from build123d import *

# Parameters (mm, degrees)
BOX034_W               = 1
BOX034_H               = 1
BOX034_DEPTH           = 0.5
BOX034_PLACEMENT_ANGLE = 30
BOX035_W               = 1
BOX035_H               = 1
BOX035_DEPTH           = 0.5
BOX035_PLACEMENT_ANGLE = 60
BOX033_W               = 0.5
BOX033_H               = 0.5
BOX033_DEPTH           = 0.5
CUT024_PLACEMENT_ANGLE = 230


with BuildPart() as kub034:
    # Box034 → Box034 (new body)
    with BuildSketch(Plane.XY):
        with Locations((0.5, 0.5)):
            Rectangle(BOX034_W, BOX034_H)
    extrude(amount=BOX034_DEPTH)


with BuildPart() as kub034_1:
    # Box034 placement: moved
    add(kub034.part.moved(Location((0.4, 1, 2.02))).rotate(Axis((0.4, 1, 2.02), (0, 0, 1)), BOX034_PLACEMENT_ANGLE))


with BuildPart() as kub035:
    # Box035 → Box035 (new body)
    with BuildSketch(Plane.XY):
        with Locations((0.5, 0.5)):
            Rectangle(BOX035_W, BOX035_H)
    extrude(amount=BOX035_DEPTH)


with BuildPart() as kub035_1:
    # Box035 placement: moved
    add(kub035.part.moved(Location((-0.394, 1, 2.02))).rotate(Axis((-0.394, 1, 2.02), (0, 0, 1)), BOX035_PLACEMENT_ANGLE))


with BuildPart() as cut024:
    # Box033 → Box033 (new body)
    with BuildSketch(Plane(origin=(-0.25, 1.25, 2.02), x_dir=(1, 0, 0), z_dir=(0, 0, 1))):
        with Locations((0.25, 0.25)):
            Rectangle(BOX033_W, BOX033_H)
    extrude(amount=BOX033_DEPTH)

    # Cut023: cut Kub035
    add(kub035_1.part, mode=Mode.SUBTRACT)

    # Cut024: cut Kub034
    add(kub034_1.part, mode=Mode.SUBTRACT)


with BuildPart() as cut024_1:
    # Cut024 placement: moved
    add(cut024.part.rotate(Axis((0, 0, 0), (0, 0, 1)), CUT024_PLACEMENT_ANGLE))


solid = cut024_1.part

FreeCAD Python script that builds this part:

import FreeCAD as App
import Part
import Sketcher
from FreeCAD import Vector

doc = App.newDocument("Part")
body = doc.addObject("PartDesign::Body", "Body")

sketch1 = body.newObject("Sketcher::SketchObject", "Sketch")
sketch1.AttachmentSupport = (doc.getObject("XY_Plane"), [""])
sketch1.MapMode = "FlatFace"
sketch1.addGeometry([
    Part.LineSegment(Vector(0, 1, 0), Vector(0, 0, 0)),
    Part.LineSegment(Vector(0, 0, 0), Vector(1, 0, 0)),
    Part.LineSegment(Vector(1, 0, 0), Vector(1, 1, 0)),
    Part.LineSegment(Vector(1, 1, 0), Vector(0, 1, 0)),
], False)
sketch1.addConstraint([
    Sketcher.Constraint("Coincident", 0, 2, 1, 1),
    Sketcher.Constraint("Coincident", 1, 2, 2, 1),
    Sketcher.Constraint("Coincident", 2, 2, 3, 1),
    Sketcher.Constraint("Coincident", 3, 2, 0, 1),
    Sketcher.Constraint("Vertical", 0),
    Sketcher.Constraint("Horizontal", 1),
    Sketcher.Constraint("Vertical", 2),
    Sketcher.Constraint("Horizontal", 3),
    Sketcher.Constraint("Coincident", 0, 2, -1, 1),
    Sketcher.Constraint("Equal", 3, 0),
    Sketcher.Constraint("DistanceX", 1, 1, 1, 2, 1.0),
])
pad1 = body.newObject("PartDesign::Pad", "Pad")
pad1.Profile = sketch1
pad1.Length = 0.5
body2 = doc.addObject("PartDesign::Body", "Body001")
doc.recompute()

body.Placement = App.Placement(Vector(0.4, 1, 2.02), App.Rotation(Vector(0, 0, 1), 30))
boolean = body2.newObject("PartDesign::Boolean", "Boolean")
boolean.Type = "Fuse"
boolean.addObjects([body])
body3 = doc.addObject("PartDesign::Body", "Body002")

sketch2 = body3.newObject("Sketcher::SketchObject", "Sketch001")
sketch2.AttachmentSupport = (doc.getObject("XY_Plane002"), [""])
sketch2.MapMode = "FlatFace"
sketch2.addGeometry([
    Part.LineSegment(Vector(0, 1, 0), Vector(0, 0, 0)),
    Part.LineSegment(Vector(0, 0, 0), Vector(1, 0, 0)),
    Part.LineSegment(Vector(1, 0, 0), Vector(1, 1, 0)),
    Part.LineSegment(Vector(1, 1, 0), Vector(0, 1, 0)),
], False)
sketch2.addConstraint([
    Sketcher.Constraint("Coincident", 0, 2, 1, 1),
    Sketcher.Constraint("Coincident", 1, 2, 2, 1),
    Sketcher.Constraint("Coincident", 2, 2, 3, 1),
    Sketcher.Constraint("Coincident", 3, 2, 0, 1),
    Sketcher.Constraint("Vertical", 0),
    Sketcher.Constraint("Horizontal", 1),
    Sketcher.Constraint("Vertical", 2),
    Sketcher.Constraint("Horizontal", 3),
    Sketcher.Constraint("Coincident", 0, 2, -1, 1),
    Sketcher.Constraint("Equal", 3, 0),
    Sketcher.Constraint("DistanceX", 1, 1, 1, 2, 1.0),
])
pad2 = body3.newObject("PartDesign::Pad", "Pad001")
pad2.Profile = sketch2
pad2.Length = 0.5
body4 = doc.addObject("PartDesign::Body", "Body003")
doc.recompute()

body3.Placement = App.Placement(Vector(-0.394, 1, 2.02), App.Rotation(Vector(0, 0, 1), 60))
boolean2 = body4.newObject("PartDesign::Boolean", "Boolean001")
boolean2.Type = "Fuse"
boolean2.addObjects([body3])
body5 = doc.addObject("PartDesign::Body", "Body004")

sketch3 = body5.newObject("Sketcher::SketchObject", "Sketch002")
sketch3.AttachmentSupport = (doc.getObject("XY_Plane004"), [""])
sketch3.MapMode = "FlatFace"
sketch3.AttachmentOffset = App.Placement(Vector(0, 0, 2.02), App.Rotation())
sketch3.addGeometry([
    Part.LineSegment(Vector(-0.2, 1.8, 0), Vector(-0.2, 1.2, 0)),
    Part.LineSegment(Vector(-0.2, 1.2, 0), Vector(0.2, 1.2, 0)),
    Part.LineSegment(Vector(0.2, 1.2, 0), Vector(0.2, 1.8, 0)),
    Part.LineSegment(Vector(0.2, 1.8, 0), Vector(-0.2, 1.8, 0)),
], False)
sketch3.addConstraint([
    Sketcher.Constraint("Coincident", 0, 2, 1, 1),
    Sketcher.Constraint("Coincident", 1, 2, 2, 1),
    Sketcher.Constraint("Coincident", 2, 2, 3, 1),
    Sketcher.Constraint("Coincident", 3, 2, 0, 1),
    Sketcher.Constraint("Vertical", 0),
    Sketcher.Constraint("Horizontal", 1),
    Sketcher.Constraint("Vertical", 2),
    Sketcher.Constraint("Horizontal", 3),
    Sketcher.Constraint("Equal", 3, 0),
    Sketcher.Constraint("DistanceX", 1, 1, 1, 2, 0.5),
    Sketcher.Constraint("DistanceX", 0, 2, -1, 1, 0.25),
    Sketcher.Constraint("DistanceY", -1, 1, 0, 2, 1.25),
])
pad3 = body5.newObject("PartDesign::Pad", "Pad002")
pad3.Profile = sketch3
pad3.Length = 0.5
doc.recompute()

boolean3 = body5.newObject("PartDesign::Boolean", "Boolean002")
boolean3.Type = "Cut"
boolean3.addObjects([body4])
doc.recompute()

boolean4 = body5.newObject("PartDesign::Boolean", "Boolean003")
boolean4.Type = "Cut"
boolean4.addObjects([body2])
body6 = doc.addObject("PartDesign::Body", "Body005")
doc.recompute()

body5.Placement = App.Placement(Vector(0, 0, 0), App.Rotation(Vector(0, 0, 1), 230))
boolean5 = body6.newObject("PartDesign::Boolean", "Boolean004")
boolean5.Type = "Fuse"
boolean5.addObjects([body5])

doc.recompute()
